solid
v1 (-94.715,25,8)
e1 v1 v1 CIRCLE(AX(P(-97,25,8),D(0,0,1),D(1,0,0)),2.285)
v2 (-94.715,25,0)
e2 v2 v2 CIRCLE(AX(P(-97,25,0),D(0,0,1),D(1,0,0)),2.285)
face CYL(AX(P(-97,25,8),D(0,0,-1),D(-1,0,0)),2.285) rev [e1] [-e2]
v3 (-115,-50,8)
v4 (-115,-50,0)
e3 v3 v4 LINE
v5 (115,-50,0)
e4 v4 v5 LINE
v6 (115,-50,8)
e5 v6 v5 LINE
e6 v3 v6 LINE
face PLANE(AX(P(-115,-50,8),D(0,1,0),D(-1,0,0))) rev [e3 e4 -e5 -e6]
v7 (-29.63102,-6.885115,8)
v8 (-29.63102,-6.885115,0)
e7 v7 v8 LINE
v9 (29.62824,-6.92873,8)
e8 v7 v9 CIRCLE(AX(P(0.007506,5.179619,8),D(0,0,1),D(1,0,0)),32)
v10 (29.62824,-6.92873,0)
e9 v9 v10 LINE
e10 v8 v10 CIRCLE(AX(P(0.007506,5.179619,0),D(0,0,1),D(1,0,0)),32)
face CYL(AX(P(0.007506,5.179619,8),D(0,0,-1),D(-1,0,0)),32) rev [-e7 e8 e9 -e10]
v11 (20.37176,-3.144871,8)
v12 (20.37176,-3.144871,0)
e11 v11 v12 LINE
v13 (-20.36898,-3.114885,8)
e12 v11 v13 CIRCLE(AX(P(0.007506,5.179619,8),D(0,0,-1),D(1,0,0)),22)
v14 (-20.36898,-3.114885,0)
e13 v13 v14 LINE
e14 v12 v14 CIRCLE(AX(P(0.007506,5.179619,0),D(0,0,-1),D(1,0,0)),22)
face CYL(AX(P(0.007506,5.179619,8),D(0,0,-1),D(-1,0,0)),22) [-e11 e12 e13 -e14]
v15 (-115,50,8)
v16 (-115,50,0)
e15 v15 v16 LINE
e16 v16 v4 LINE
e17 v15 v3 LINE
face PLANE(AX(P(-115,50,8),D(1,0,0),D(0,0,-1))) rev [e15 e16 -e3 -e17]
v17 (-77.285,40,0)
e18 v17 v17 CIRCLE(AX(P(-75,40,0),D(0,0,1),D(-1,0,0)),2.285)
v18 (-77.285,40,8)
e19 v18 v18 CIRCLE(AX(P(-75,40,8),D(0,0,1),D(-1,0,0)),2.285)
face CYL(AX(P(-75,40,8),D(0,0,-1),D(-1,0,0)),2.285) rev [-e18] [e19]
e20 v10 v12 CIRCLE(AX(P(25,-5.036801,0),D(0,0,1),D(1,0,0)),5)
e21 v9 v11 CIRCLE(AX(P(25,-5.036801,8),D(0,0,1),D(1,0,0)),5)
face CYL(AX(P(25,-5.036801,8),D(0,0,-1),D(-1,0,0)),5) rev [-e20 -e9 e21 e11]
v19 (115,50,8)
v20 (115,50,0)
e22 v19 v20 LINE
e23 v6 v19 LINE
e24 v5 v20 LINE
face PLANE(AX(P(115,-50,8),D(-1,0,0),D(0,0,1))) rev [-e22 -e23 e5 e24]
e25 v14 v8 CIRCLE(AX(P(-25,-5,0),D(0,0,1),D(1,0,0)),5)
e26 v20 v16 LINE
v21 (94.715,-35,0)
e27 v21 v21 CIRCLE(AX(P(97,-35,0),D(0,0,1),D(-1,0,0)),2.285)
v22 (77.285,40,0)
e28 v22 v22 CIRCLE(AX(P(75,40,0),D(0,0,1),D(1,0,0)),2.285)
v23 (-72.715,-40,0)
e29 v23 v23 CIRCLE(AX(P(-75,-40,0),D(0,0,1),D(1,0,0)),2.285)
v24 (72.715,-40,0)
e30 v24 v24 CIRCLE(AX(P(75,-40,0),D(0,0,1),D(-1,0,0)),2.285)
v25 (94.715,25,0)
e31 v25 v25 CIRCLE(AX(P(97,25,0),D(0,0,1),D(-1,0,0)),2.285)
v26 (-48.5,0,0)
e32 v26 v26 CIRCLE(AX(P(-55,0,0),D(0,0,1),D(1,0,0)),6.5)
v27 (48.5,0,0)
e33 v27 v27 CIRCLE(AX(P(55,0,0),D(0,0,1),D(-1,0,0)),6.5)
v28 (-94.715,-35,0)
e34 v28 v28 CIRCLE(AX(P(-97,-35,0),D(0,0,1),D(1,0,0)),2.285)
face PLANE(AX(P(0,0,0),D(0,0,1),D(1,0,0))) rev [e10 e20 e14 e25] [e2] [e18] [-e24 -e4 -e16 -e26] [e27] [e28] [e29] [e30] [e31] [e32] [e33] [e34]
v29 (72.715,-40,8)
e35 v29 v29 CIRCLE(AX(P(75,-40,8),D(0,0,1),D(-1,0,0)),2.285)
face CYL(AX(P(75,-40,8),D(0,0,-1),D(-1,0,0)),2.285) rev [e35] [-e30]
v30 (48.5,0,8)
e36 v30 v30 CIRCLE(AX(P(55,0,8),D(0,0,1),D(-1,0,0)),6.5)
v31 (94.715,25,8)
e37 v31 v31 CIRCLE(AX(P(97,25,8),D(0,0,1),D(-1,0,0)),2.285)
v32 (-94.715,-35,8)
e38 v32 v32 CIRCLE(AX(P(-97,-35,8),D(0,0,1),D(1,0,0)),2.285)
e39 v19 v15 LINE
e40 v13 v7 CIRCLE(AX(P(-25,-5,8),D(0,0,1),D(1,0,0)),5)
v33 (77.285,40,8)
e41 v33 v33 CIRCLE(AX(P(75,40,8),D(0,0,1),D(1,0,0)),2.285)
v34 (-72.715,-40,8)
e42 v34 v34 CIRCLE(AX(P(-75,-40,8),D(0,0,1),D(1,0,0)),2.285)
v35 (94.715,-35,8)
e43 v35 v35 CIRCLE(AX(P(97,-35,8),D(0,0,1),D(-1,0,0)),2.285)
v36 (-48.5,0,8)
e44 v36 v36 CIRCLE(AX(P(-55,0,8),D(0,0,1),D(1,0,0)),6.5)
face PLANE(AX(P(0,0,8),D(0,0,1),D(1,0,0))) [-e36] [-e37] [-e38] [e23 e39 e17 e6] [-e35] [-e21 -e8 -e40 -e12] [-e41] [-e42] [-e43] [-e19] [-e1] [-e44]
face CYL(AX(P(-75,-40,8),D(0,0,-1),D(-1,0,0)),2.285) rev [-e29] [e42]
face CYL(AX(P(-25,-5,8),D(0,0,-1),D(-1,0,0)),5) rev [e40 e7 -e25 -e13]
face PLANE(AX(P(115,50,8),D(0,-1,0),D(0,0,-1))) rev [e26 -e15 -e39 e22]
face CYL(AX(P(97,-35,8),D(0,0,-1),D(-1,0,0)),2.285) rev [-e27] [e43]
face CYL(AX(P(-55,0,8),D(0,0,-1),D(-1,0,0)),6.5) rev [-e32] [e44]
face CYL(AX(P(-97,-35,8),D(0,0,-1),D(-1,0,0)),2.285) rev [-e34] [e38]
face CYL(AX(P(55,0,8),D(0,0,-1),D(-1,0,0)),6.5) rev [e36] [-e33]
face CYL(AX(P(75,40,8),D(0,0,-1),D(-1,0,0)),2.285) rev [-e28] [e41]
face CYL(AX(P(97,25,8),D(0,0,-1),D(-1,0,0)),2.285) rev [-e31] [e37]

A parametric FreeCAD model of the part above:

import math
import FreeCAD as App
import Part
import Sketcher
from FreeCAD import Vector
Q = App.Units.Quantity


def add_polygon(sketch, points):
    """Adds a closed chain of lines whose ends are joined by coincident constraints."""
    first, n = sketch.GeometryCount, len(points)
    for a, b in zip(points, points[1:] + points[:1]):
        sketch.addGeometry(Part.LineSegment(App.Vector(*a, 0), App.Vector(*b, 0)), False)
    for i in range(n):
        sketch.addConstraint(Sketcher.Constraint("Coincident", first + i, 2, first + (i + 1) % n, 1))

doc = App.newDocument("Part")
body = doc.addObject("PartDesign::Body", "Body")

sketch1 = body.newObject("Sketcher::SketchObject", "Sketch")
sketch1.AttachmentSupport = (doc.getObject("XY_Plane"), [""])
sketch1.MapMode = "FlatFace"
add_polygon(sketch1, [(-115, 50), (-115, -50), (115, -50), (115, 50)])
sketch1.addGeometry(Part.Circle(Vector(-75, -40, 0), Vector(0, 0, 1), 2.3), False)
sketch1.addGeometry(Part.Circle(Vector(-97, -35, 0), Vector(0, 0, 1), 2.3), False)
sketch1.addGeometry(Part.Circle(Vector(75, -40, 0), Vector(0, 0, 1), 2.3), False)
sketch1.addGeometry(Part.Circle(Vector(97, -35, 0), Vector(0, 0, 1), 2.3), False)
sketch1.addGeometry(Part.ArcOfCircle(Part.Circle(Vector(0, 5.2, 0), Vector(0, 0, 1), 32), math.radians(-158), math.radians(-22)), False)
sketch1.addGeometry(Part.ArcOfCircle(Part.Circle(Vector(-25, -5, 0), Vector(0, 0, 1), 5), math.radians(22), math.radians(202)), False)
sketch1.addGeometry(Part.ArcOfCircle(Part.Circle(Vector(0, 5.2, 0), Vector(0, 0, 1), 22), math.radians(-158), math.radians(-22)), False)
sketch1.addGeometry(Part.ArcOfCircle(Part.Circle(Vector(25, -5, 0), Vector(0, 0, 1), 5), math.radians(-22), math.radians(158)), False)
sketch1.addGeometry(Part.Circle(Vector(-55, 0, 0), Vector(0, 0, 1), 6.5), False)
sketch1.addGeometry(Part.Circle(Vector(-97, 25, 0), Vector(0, 0, 1), 2.3), False)
sketch1.addGeometry(Part.Circle(Vector(-75, 40, 0), Vector(0, 0, 1), 2.3), False)
sketch1.addGeometry(Part.Circle(Vector(55, 0, 0), Vector(0, 0, 1), 6.5), False)
sketch1.addGeometry(Part.Circle(Vector(97, 25, 0), Vector(0, 0, 1), 2.3), False)
sketch1.addGeometry(Part.Circle(Vector(75, 40, 0), Vector(0, 0, 1), 2.3), False)
sketch1.addConstraint([
    Sketcher.Constraint("Tangent", 8, 1, 9, 2),
    Sketcher.Constraint("Tangent", 9, 1, 10, 1),
    Sketcher.Constraint("Tangent", 10, 2, 11, 2),
    Sketcher.Constraint("Tangent", 11, 1, 8, 2),
    Sketcher.Constraint("Vertical", 0),
    Sketcher.Constraint("Horizontal", 1),
    Sketcher.Constraint("Vertical", 2),
    Sketcher.Constraint("Horizontal", 3),
    Sketcher.Constraint("Coincident", 10, 3, 8, 3),
    Sketcher.Constraint("Equal", 4, 5),
    Sketcher.Constraint("Equal", 5, 6),
    Sketcher.Constraint("Equal", 6, 7),
    Sketcher.Constraint("Equal", 7, 13),
    Sketcher.Constraint("Equal", 13, 14),
    Sketcher.Constraint("Equal", 12, 15),
    Sketcher.Constraint("Equal", 14, 16),
    Sketcher.Constraint("Equal", 16, 17),
    Sketcher.Constraint("Symmetric", 6, 3, 14, 3, -1, 1),
    Sketcher.Constraint("Symmetric", 12, 3, 15, 3, -1, 1),
    Sketcher.Constraint("Symmetric", 4, 3, 17, 3, -1, 1),
    Sketcher.Constraint("Symmetric", 0, 2, 2, 2, -1, 1),
    Sketcher.Constraint("Symmetric", 4, 3, 6, 3, -2),
    Sketcher.Constraint("Symmetric", 5, 3, 7, 3, -2),
    Sketcher.Constraint("Symmetric", 13, 3, 16, 3, -2),
    Sketcher.Constraint("PointOnObject", 12, 3, -1),
    Sketcher.Constraint("Vertical", 5, 3, 13, 3),
    Sketcher.Constraint("Diameter", 12, Q("13 mm")),
    Sketcher.Constraint("Radius", 8, Q("32 mm")),
    Sketcher.Constraint("Radius", 9, Q("5 mm")),
    Sketcher.Constraint("Diameter", 4, Q("4.57 mm")),
    Sketcher.Constraint("DistanceX", 1, 1, 1, 2, Q("230 mm")),
    Sketcher.Constraint("DistanceY", 0, 2, 0, 1, Q("100 mm")),
    Sketcher.Constraint("DistanceX", 4, 3, -1, 1, Q("75 mm")),
    Sketcher.Constraint("DistanceY", 4, 3, -1, 1, Q("40 mm")),
    Sketcher.Constraint("DistanceX", 5, 3, -1, 1, Q("97 mm")),
    Sketcher.Constraint("DistanceY", 5, 3, -1, 1, Q("35 mm")),
    Sketcher.Constraint("DistanceX", 9, 3, -1, 1, Q("25 mm")),
    Sketcher.Constraint("DistanceY", 9, 3, -1, 1, Q("5 mm")),
    Sketcher.Constraint("DistanceX", -1, 1, 11, 3, Q("25 mm")),
    Sketcher.Constraint("DistanceX", 12, 3, -1, 1, Q("55 mm")),
    Sketcher.Constraint("DistanceY", -1, 1, 13, 3, Q("25 mm")),
    Sketcher.Constraint("DistanceY", 11, 3, -1, 1, Q("5.036801 mm")),
])
pad1 = body.newObject("PartDesign::Pad", "Pad")
pad1.Profile = sketch1
pad1.Length = 8

doc.recompute()
